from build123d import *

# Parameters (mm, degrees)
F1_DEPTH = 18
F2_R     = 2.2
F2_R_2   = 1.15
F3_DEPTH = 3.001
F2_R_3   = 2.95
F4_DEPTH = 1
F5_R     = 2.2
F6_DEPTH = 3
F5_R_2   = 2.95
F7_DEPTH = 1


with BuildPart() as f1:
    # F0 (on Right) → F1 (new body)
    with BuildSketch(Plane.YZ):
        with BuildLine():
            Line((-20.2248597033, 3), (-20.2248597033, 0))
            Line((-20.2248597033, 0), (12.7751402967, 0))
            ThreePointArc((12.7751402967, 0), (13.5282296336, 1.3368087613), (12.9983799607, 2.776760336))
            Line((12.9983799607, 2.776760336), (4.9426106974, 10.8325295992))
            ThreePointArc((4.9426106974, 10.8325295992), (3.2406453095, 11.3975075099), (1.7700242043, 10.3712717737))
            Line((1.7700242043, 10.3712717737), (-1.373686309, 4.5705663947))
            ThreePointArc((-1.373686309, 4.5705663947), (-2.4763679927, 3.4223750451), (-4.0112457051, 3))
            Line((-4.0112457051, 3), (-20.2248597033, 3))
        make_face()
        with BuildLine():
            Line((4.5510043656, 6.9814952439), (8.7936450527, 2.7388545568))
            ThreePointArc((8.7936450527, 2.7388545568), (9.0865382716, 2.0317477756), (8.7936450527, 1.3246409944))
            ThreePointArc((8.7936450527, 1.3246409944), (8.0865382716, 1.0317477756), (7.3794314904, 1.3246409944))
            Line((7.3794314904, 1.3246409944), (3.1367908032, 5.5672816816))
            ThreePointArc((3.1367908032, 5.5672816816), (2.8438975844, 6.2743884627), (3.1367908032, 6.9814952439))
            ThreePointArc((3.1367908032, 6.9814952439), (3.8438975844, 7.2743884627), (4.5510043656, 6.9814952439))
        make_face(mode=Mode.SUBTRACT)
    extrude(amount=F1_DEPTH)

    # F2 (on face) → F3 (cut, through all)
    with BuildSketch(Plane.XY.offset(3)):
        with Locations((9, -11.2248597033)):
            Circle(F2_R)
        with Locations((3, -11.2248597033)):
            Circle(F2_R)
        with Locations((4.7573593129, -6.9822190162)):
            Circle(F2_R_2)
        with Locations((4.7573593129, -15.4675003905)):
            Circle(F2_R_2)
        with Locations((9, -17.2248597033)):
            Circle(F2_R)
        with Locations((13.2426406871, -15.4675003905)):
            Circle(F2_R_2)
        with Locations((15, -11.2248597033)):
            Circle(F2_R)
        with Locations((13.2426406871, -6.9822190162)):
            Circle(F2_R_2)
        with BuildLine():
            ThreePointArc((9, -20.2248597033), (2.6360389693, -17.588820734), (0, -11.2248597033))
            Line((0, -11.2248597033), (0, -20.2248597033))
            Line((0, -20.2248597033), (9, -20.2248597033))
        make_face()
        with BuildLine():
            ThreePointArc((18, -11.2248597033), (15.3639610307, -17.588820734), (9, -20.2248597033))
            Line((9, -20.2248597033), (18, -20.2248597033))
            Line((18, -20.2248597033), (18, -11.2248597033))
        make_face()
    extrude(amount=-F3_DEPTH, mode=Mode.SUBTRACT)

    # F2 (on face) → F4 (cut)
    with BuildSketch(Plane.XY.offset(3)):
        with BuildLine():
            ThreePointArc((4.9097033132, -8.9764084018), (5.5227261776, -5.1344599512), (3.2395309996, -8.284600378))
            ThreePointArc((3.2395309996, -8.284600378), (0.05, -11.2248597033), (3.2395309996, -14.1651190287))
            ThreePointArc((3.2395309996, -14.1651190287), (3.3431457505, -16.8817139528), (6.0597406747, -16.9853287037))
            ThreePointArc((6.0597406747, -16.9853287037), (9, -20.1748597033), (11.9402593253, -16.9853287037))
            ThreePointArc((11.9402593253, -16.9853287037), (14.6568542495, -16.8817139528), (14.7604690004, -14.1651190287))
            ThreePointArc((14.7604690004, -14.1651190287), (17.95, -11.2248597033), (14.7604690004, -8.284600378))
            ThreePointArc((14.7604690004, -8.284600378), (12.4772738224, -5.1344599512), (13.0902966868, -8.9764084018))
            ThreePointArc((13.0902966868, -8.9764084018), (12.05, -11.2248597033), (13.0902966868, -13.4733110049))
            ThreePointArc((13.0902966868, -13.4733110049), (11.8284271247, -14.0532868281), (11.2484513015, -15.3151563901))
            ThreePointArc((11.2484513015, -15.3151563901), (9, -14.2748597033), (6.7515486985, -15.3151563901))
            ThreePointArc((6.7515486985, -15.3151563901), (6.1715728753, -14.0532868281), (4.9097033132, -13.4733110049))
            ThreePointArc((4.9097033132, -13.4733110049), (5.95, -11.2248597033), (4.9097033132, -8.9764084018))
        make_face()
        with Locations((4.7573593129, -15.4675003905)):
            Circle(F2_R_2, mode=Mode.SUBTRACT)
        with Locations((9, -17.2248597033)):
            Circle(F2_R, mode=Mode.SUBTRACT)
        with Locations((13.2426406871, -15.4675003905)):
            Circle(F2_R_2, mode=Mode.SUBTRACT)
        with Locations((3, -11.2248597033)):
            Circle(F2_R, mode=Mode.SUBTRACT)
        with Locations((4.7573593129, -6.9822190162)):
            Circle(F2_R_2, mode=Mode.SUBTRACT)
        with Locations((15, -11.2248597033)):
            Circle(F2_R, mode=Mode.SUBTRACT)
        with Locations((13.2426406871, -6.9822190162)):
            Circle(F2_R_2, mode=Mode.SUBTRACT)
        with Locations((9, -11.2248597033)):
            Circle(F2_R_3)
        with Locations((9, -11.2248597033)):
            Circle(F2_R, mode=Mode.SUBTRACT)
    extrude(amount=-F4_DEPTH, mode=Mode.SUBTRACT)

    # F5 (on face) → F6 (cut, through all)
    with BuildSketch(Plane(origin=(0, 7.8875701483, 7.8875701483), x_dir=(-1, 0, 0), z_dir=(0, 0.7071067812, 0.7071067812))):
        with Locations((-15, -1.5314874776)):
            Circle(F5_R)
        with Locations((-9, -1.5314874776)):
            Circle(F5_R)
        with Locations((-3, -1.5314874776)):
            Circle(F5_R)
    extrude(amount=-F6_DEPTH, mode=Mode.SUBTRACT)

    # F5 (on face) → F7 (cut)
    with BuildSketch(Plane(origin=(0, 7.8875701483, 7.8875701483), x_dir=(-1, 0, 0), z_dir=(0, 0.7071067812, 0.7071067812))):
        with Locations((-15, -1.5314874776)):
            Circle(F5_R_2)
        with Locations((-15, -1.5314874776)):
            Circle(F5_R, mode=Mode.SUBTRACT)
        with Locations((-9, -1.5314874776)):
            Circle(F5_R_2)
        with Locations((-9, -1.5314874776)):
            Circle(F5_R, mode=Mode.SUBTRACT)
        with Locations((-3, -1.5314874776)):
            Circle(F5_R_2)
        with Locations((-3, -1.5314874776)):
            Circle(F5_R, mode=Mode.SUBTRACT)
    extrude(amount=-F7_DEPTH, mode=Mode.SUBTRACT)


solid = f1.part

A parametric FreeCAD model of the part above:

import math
import FreeCAD as App
import Part
import Sketcher
Q = App.Units.Quantity

doc = App.newDocument("Part")
body = doc.addObject("PartDesign::Body", "Body")

sketch1 = doc.addObject("Sketcher::SketchObject", "Sketch")
body.addObject(sketch1)
sketch1.AttachmentSupport = (doc.YZ_Plane, [""])
sketch1.MapMode = "FlatFace"
sketch1.addGeometry([
    Part.LineSegment(App.Vector(-20.2, 3, 0), App.Vector(-20.2, 0, 0)),
    Part.LineSegment(App.Vector(-20.2, 0, 0), App.Vector(12.8, 0, 0)),
    Part.ArcOfCircle(Part.Circle(App.Vector(11.7, 1.5, 0), App.Vector(0, 0, 1), 1.8), math.radians(-54), math.radians(45)),
    Part.LineSegment(App.Vector(13, 2.8, 0), App.Vector(4.9, 10.8, 0)),
    Part.ArcOfCircle(Part.Circle(App.Vector(3.5, 9.4, 0), App.Vector(0, 0, 1), 2), math.radians(45), math.radians(152)),
    Part.LineSegment(App.Vector(1.8, 10.4, 0), App.Vector(-1.4, 4.6, 0)),
    Part.ArcOfCircle(Part.Circle(App.Vector(-4, 6, 0), App.Vector(0, 0, 1), 3), math.radians(-90), math.radians(-28)),
    Part.LineSegment(App.Vector(-4, 3, 0), App.Vector(-20.2, 3, 0)),
    Part.ArcOfCircle(Part.Circle(App.Vector(3.8, 6.3, 0), App.Vector(0, 0, 1), 1), math.radians(45), math.radians(135)),
    Part.LineSegment(App.Vector(4.6, 7, 0), App.Vector(8.8, 2.7, 0)),
    Part.ArcOfCircle(Part.Circle(App.Vector(8.1, 2, 0), App.Vector(0, 0, 1), 1), math.radians(-45), math.radians(45)),
    Part.ArcOfCircle(Part.Circle(App.Vector(8.1, 2, 0), App.Vector(0, 0, 1), 1), math.radians(-135), math.radians(-45)),
    Part.LineSegment(App.Vector(7.4, 1.3, 0), App.Vector(3.1, 5.6, 0)),
    Part.ArcOfCircle(Part.Circle(App.Vector(3.8, 6.3, 0), App.Vector(0, 0, 1), 1), math.radians(135), math.radians(225)),
], False)
sketch1.addConstraint([
    Sketcher.Constraint("Coincident", 0, 2, 1, 1),
    Sketcher.Constraint("Coincident", 1, 2, 2, 1),
    Sketcher.Constraint("Tangent", 2, 2, 3, 1),
    Sketcher.Constraint("Tangent", 3, 2, 4, 1),
    Sketcher.Constraint("Tangent", 4, 2, 5, 1),
    Sketcher.Constraint("Tangent", 5, 2, 6, 2),
    Sketcher.Constraint("Tangent", 6, 1, 7, 1),
    Sketcher.Constraint("Coincident", 7, 2, 0, 1),
    Sketcher.Constraint("Tangent", 8, 1, 9, 1),
    Sketcher.Constraint("Tangent", 9, 2, 10, 2),
    Sketcher.Constraint("Tangent", 10, 1, 11, 2),
    Sketcher.Constraint("Tangent", 11, 1, 12, 1),
    Sketcher.Constraint("Tangent", 12, 2, 13, 2),
    Sketcher.Constraint("Tangent", 13, 1, 8, 2),
    Sketcher.Constraint("Vertical", 0),
    Sketcher.Constraint("Horizontal", 1),
    Sketcher.Constraint("Horizontal", 7),
    Sketcher.Constraint("Equal", 8, 10),
    Sketcher.Constraint("Equal", 10, 11),
    Sketcher.Constraint("Equal", 11, 13),
    Sketcher.Constraint("PointOnObject", 0, 2, -1),
    Sketcher.Constraint("Parallel", 3, 9),
    Sketcher.Constraint("Horizontal", 10, 1, 11, 1),
    Sketcher.Constraint("Horizontal", 8, 1, 13, 1),
    Sketcher.Constraint("Radius", 4, 2.0),
    Sketcher.Constraint("Radius", 6, 3.0),
    Sketcher.Constraint("Radius", 8, 1.0),
    Sketcher.Constraint("DistanceX", 1, 1, 1, 2, 33.0),
    Sketcher.Constraint("DistanceY", 0, 2, 0, 1, 3.0),
    Sketcher.Constraint("Angle", 3, Q("135 deg")),
    Sketcher.Constraint("Distance", 9, 6.0),
    Sketcher.Constraint("Radius", 2, 1.829105),
    Sketcher.Constraint("DistanceY", 2, 3, 8, 3, 4.791),
    Sketcher.Constraint("DistanceX", 4, 3, 8, 3, 0.3155),
    Sketcher.Constraint("Distance", 3, 11.392578),
    Sketcher.Constraint("Distance", 5, 6.59781),
    Sketcher.Constraint("DistanceX", 7, 2, 7, 1, 16.213614),
    Sketcher.Constraint("DistanceX", -1, 1, 10, 3, 8.086538),
])
pad1 = doc.addObject("PartDesign::Pad", "Pad")
body.addObject(pad1)
pad1.Profile = sketch1
pad1.Length = 18

sketch2 = doc.addObject("Sketcher::SketchObject", "Sketch001")
body.addObject(sketch2)
sketch2.AttachmentSupport = (doc.XY_Plane, [""])
sketch2.MapMode = "FlatFace"
sketch2.AttachmentOffset = App.Placement(App.Vector(0, 0, 3), App.Rotation())
sketch2.addGeometry([
    Part.Circle(App.Vector(9, -11.2, 0), App.Vector(0, 0, 1), 2.2),
    Part.Circle(App.Vector(3, -11.2, 0), App.Vector(0, 0, 1), 2.2),
    Part.Circle(App.Vector(4.8, -7, 0), App.Vector(0, 0, 1), 1.1),
    Part.Circle(App.Vector(4.8, -15.5, 0), App.Vector(0, 0, 1), 1.1),
    Part.Circle(App.Vector(9, -17.2, 0), App.Vector(0, 0, 1), 2.2),
    Part.Circle(App.Vector(13.2, -15.5, 0), App.Vector(0, 0, 1), 1.1),
    Part.Circle(App.Vector(15, -11.2, 0), App.Vector(0, 0, 1), 2.2),
    Part.Circle(App.Vector(13.2, -7, 0), App.Vector(0, 0, 1), 1.1),
    Part.ArcOfCircle(Part.Circle(App.Vector(9, -11.2, 0), App.Vector(0, 0, 1), 9), math.radians(180), math.radians(270)),
    Part.LineSegment(App.Vector(0, -11.2, 0), App.Vector(0, -20.2, 0)),
    Part.LineSegment(App.Vector(0, -20.2, 0), App.Vector(9, -20.2, 0)),
    Part.ArcOfCircle(Part.Circle(App.Vector(9, -11.2, 0), App.Vector(0, 0, 1), 9), math.radians(-90), math.radians(0)),
    Part.LineSegment(App.Vector(9, -20.2, 0), App.Vector(18, -20.2, 0)),
    Part.LineSegment(App.Vector(18, -20.2, 0), App.Vector(18, -11.2, 0)),
], False)
sketch2.addConstraint([
    Sketcher.Constraint("Tangent", 8, 1, 9, 1),
    Sketcher.Constraint("Coincident", 9, 2, 10, 1),
    Sketcher.Constraint("Tangent", 10, 2, 8, 2),
    Sketcher.Constraint("Tangent", 11, 1, 12, 1),
    Sketcher.Constraint("Coincident", 12, 2, 13, 1),
    Sketcher.Constraint("Tangent", 13, 2, 11, 2),
    Sketcher.Constraint("Vertical", 9),
    Sketcher.Constraint("Horizontal", 10),
    Sketcher.Constraint("Horizontal", 12),
    Sketcher.Constraint("Vertical", 13),
    Sketcher.Constraint("Coincident", 8, 3, 0, 3),
    Sketcher.Constraint("Coincident", 11, 3, 0, 3),
    Sketcher.Constraint("Equal", 0, 1),
    Sketcher.Constraint("Equal", 2, 3),
    Sketcher.Constraint("Equal", 1, 4),
    Sketcher.Constraint("Equal", 3, 5),
    Sketcher.Constraint("Equal", 4, 6),
    Sketcher.Constraint("Equal", 5, 7),
    Sketcher.Constraint("Equal", 8, 11),
    Sketcher.Constraint("PointOnObject", 8, 1, -2),
    Sketcher.Constraint("Horizontal", 0, 3, 1, 3),
    Sketcher.Constraint("Horizontal", 3, 3, 5, 3),
    Sketcher.Constraint("Horizontal", 1, 3, 6, 3),
    Sketcher.Constraint("Horizontal", 2, 3, 7, 3),
    Sketcher.Constraint("Vertical", 2, 3, 3, 3),
    Sketcher.Constraint("Vertical", 0, 3, 4, 3),
    Sketcher.Constraint("Vertical", 5, 3, 7, 3),
    Sketcher.Constraint("Radius", 8, 9.0),
    Sketcher.Constraint("Diameter", 0, 4.4),
    Sketcher.Constraint("Diameter", 2, 2.3),
    Sketcher.Constraint("DistanceX", -1, 1, 1, 3, 3.0),
    Sketcher.Constraint("DistanceX", -1, 1, 6, 3, 15.0),
    Sketcher.Constraint("DistanceY", 4, 3, 0, 3, 6.0),
    Sketcher.Constraint("DistanceY", 3, 3, -1, 1, 15.4675),
    Sketcher.Constraint("DistanceY", 0, 3, -1, 1, 11.22486),
    Sketcher.Constraint("DistanceX", -1, 1, 2, 3, 4.757359),
    Sketcher.Constraint("DistanceY", 2, 3, -1, 1, 6.982219),
    Sketcher.Constraint("DistanceX", -1, 1, 5, 3, 13.242641),
])
pocket1 = doc.addObject("PartDesign::Pocket", "Pocket")
body.addObject(pocket1)
pocket1.Profile = sketch2
pocket1.Type = "ThroughAll"

sketch3 = doc.addObject("Sketcher::SketchObject", "Sketch002")
body.addObject(sketch3)
sketch3.AttachmentSupport = (doc.XY_Plane, [""])
sketch3.MapMode = "FlatFace"
sketch3.AttachmentOffset = App.Placement(App.Vector(0, 0, 3), App.Rotation())
sketch3.addGeometry([
    Part.ArcOfCircle(Part.Circle(App.Vector(4.8, -7, 0), App.Vector(0, 0, 1), 2), math.radians(-86), math.radians(221)),
    Part.ArcOfCircle(Part.Circle(App.Vector(3, -11.2, 0), App.Vector(0, 0, 1), 3), math.radians(85), math.radians(275)),
    Part.ArcOfCircle(Part.Circle(App.Vector(4.8, -15.5, 0), App.Vector(0, 0, 1), 2), math.radians(139), math.radians(311)),
    Part.ArcOfCircle(Part.Circle(App.Vector(9, -17.2, 0), App.Vector(0, 0, 1), 3), math.radians(175), math.radians(365)),
    Part.ArcOfCircle(Part.Circle(App.Vector(13.2, -15.5, 0), App.Vector(0, 0, 1), 2), math.radians(-131), math.radians(41)),
    Part.ArcOfCircle(Part.Circle(App.Vector(15, -11.2, 0), App.Vector(0, 0, 1), 3), math.radians(-95), math.radians(95)),
    Part.ArcOfCircle(Part.Circle(App.Vector(13.2, -7, 0), App.Vector(0, 0, 1), 2), math.radians(-41), math.radians(266)),
    Part.ArcOfCircle(Part.Circle(App.Vector(15, -11.2, 0), App.Vector(0, 0, 1), 3), math.radians(130), math.radians(230)),
    Part.ArcOfCircle(Part.Circle(App.Vector(13.2, -15.5, 0), App.Vector(0, 0, 1), 2), math.radians(94), math.radians(176)),
    Part.ArcOfCircle(Part.Circle(App.Vector(9, -17.2, 0), App.Vector(0, 0, 1), 3), math.radians(40), math.radians(140)),
    Part.ArcOfCircle(Part.Circle(App.Vector(4.8, -15.5, 0), App.Vector(0, 0, 1), 2), math.radians(4), math.radians(86)),
    Part.ArcOfCircle(Part.Circle(App.Vector(3, -11.2, 0), App.Vector(0, 0, 1), 3), math.radians(-50), math.radians(50)),
    Part.Circle(App.Vector(4.8, -15.5, 0), App.Vector(0, 0, 1), 1.1),
    Part.Circle(App.Vector(9, -17.2, 0), App.Vector(0, 0, 1), 2.2),
    Part.Circle(App.Vector(13.2, -15.5, 0), App.Vector(0, 0, 1), 1.1),
    Part.Circle(App.Vector(3, -11.2, 0), App.Vector(0, 0, 1), 2.2),
    Part.Circle(App.Vector(4.8, -7, 0), App.Vector(0, 0, 1), 1.1),
    Part.Circle(App.Vector(15, -11.2, 0), App.Vector(0, 0, 1), 2.2),
    Part.Circle(App.Vector(13.2, -7, 0), App.Vector(0, 0, 1), 1.1),
    Part.Circle(App.Vector(9, -11.2, 0), App.Vector(0, 0, 1), 3),
    Part.Circle(App.Vector(9, -11.2, 0), App.Vector(0, 0, 1), 2.2),
], False)
sketch3.addConstraint([
    Sketcher.Constraint("Coincident", 0, 2, 1, 1),
    Sketcher.Constraint("Coincident", 1, 2, 2, 1),
    Sketcher.Constraint("Coincident", 2, 2, 3, 1),
    Sketcher.Constraint("Coincident", 3, 2, 4, 1),
    Sketcher.Constraint("Coincident", 4, 2, 5, 1),
    Sketcher.Constraint("Coincident", 5, 2, 6, 1),
    Sketcher.Constraint("Coincident", 6, 2, 7, 1),
    Sketcher.Constraint("Coincident", 7, 2, 8, 1),
    Sketcher.Constraint("Coincident", 8, 2, 9, 1),
    Sketcher.Constraint("Coincident", 9, 2, 10, 1),
    Sketcher.Constraint("Coincident", 10, 2, 11, 1),
    Sketcher.Constraint("Coincident", 11, 2, 0, 1),
    Sketcher.Constraint("Coincident", 7, 3, 5, 3),
    Sketcher.Constraint("Coincident", 8, 3, 4, 3),
    Sketcher.Constraint("Coincident", 9, 3, 3, 3),
    Sketcher.Constraint("Coincident", 10, 3, 2, 3),
    Sketcher.Constraint("Coincident", 11, 3, 1, 3),
    Sketcher.Constraint("Coincident", 12, 3, 2, 3),
    Sketcher.Constraint("Coincident", 13, 3, 3, 3),
    Sketcher.Constraint("Coincident", 14, 3, 4, 3),
    Sketcher.Constraint("Coincident", 15, 3, 1, 3),
    Sketcher.Constraint("Coincident", 16, 3, 0, 3),
    Sketcher.Constraint("Coincident", 17, 3, 5, 3),
    Sketcher.Constraint("Coincident", 18, 3, 6, 3),
    Sketcher.Constraint("Coincident", 20, 3, 19, 3),
    Sketcher.Constraint("Equal", 0, 2),
    Sketcher.Constraint("Equal", 1, 3),
    Sketcher.Constraint("Equal", 2, 4),
    Sketcher.Constraint("Equal", 3, 5),
    Sketcher.Constraint("Equal", 4, 6),
    Sketcher.Constraint("Equal", 5, 7),
    Sketcher.Constraint("Equal", 6, 8),
    Sketcher.Constraint("Equal", 7, 9),
    Sketcher.Constraint("Equal", 8, 10),
    Sketcher.Constraint("Equal", 9, 11),
    Sketcher.Constraint("Equal", 12, 14),
    Sketcher.Constraint("Equal", 13, 15),
    Sketcher.Constraint("Equal", 14, 16),
    Sketcher.Constraint("Equal", 15, 17),
    Sketcher.Constraint("Equal", 16, 18),
    Sketcher.Constraint("Equal", 11, 19),
    Sketcher.Constraint("Equal", 17, 20),
    Sketcher.Constraint("Horizontal", 2, 3, 4, 3),
    Sketcher.Constraint("Horizontal", 1, 3, 5, 3),
    Sketcher.Constraint("Horizontal", 0, 3, 6, 3),
    Sketcher.Constraint("Horizontal", 17, 3, 19, 3),
    Sketcher.Constraint("Horizontal", 2, 2, 3, 2),
    Sketcher.Constraint("Horizontal", 1, 2, 4, 2),
    Sketcher.Constraint("Horizontal", 0, 2, 5, 2),
    Sketcher.Constraint("Vertical", 0, 3, 2, 3),
    Sketcher.Constraint("Vertical", 13, 3, 19, 3),
    Sketcher.Constraint("Vertical", 0, 2, 1, 2),
    Sketcher.Constraint("Radius", 0, 2.0),
    Sketcher.Constraint("Diameter", 12, 2.3),
    Sketcher.Constraint("Diameter", 13, 4.4),
    Sketcher.Constraint("Diameter", 19, 5.9),
    Sketcher.Constraint("DistanceX", -1, 1, 1, 3, 3.0),
    Sketcher.Constraint("DistanceX", -1, 1, 3, 3, 9.0),
    Sketcher.Constraint("DistanceY", 3, 3, 1, 3, 6.0),
    Sketcher.Constraint("DistanceY", 2, 3, -1, 1, 15.4675),
    Sketcher.Constraint("DistanceY", 0, 2, -1, 1, 8.2846),
    Sketcher.Constraint("DistanceX", -1, 1, 0, 3, 4.757359),
])
pocket2 = doc.addObject("PartDesign::Pocket", "Pocket001")
body.addObject(pocket2)
pocket2.Profile = sketch3
pocket2.Length = 1

sketch4 = doc.addObject("Sketcher::SketchObject", "Sketch003")
body.addObject(sketch4)
sketch4.Placement = App.Placement(App.Vector(0, 7.88757, 7.88757), App.Rotation(App.Vector(-1, 0, 0), App.Vector(0, -0.707106781, 0.707106781), App.Vector(0, 0.707106781, 0.707106781), "ZXY"))
sketch4.addGeometry([
    Part.Circle(App.Vector(-15, -1.5, 0), App.Vector(0, 0, 1), 2.2),
    Part.Circle(App.Vector(-9, -1.5, 0), App.Vector(0, 0, 1), 2.2),
    Part.Circle(App.Vector(-3, -1.5, 0), App.Vector(0, 0, 1), 2.2),
], False)
sketch4.addConstraint([
    Sketcher.Constraint("Equal", 0, 1),
    Sketcher.Constraint("Equal", 1, 2),
    Sketcher.Constraint("Horizontal", 0, 3, 1, 3),
    Sketcher.Constraint("Horizontal", 1, 3, 2, 3),
    Sketcher.Constraint("Diameter", 0, 4.4),
    Sketcher.Constraint("DistanceX", 0, 3, -1, 1, 15.0),
    Sketcher.Constraint("DistanceX", 1, 3, -1, 1, 9.0),
    Sketcher.Constraint("DistanceX", 2, 3, -1, 1, 3.0),
    Sketcher.Constraint("DistanceY", 0, 3, -1, 1, 1.531487),
])
pocket3 = doc.addObject("PartDesign::Pocket", "Pocket002")
body.addObject(pocket3)
pocket3.Profile = sketch4
pocket3.Length = 3

sketch5 = doc.addObject("Sketcher::SketchObject", "Sketch004")
body.addObject(sketch5)
sketch5.Placement = App.Placement(App.Vector(0, 7.88757, 7.88757), App.Rotation(App.Vector(-1, 0, 0), App.Vector(0, -0.707106781, 0.707106781), App.Vector(0, 0.707106781, 0.707106781), "ZXY"))
sketch5.addGeometry([
    Part.Circle(App.Vector(-15, -1.5, 0), App.Vector(0, 0, 1), 3),
    Part.Circle(App.Vector(-15, -1.5, 0), App.Vector(0, 0, 1), 2.2),
    Part.Circle(App.Vector(-9, -1.5, 0), App.Vector(0, 0, 1), 3),
    Part.Circle(App.Vector(-9, -1.5, 0), App.Vector(0, 0, 1), 2.2),
    Part.Circle(App.Vector(-3, -1.5, 0), App.Vector(0, 0, 1), 3),
    Part.Circle(App.Vector(-3, -1.5, 0), App.Vector(0, 0, 1), 2.2),
], False)
sketch5.addConstraint([
    Sketcher.Constraint("Coincident", 1, 3, 0, 3),
    Sketcher.Constraint("Coincident", 3, 3, 2, 3),
    Sketcher.Constraint("Coincident", 5, 3, 4, 3),
    Sketcher.Constraint("Equal", 0, 2),
    Sketcher.Constraint("Equal", 1, 3),
    Sketcher.Constraint("Equal", 2, 4),
    Sketcher.Constraint("Equal", 3, 5),
    Sketcher.Constraint("Horizontal", 1, 3, 2, 3),
    Sketcher.Constraint("Horizontal", 3, 3, 4, 3),
    Sketcher.Constraint("Diameter", 0, 5.9),
    Sketcher.Constraint("Diameter", 1, 4.4),
    Sketcher.Constraint("DistanceX", 0, 3, -1, 1, 15.0),
    Sketcher.Constraint("DistanceX", 2, 3, -1, 1, 9.0),
    Sketcher.Constraint("DistanceX", 4, 3, -1, 1, 3.0),
    Sketcher.Constraint("DistanceY", 0, 3, -1, 1, 1.531487),
])
pocket4 = doc.addObject("PartDesign::Pocket", "Pocket003")
body.addObject(pocket4)
pocket4.Profile = sketch5
pocket4.Length = 1

doc.recompute()
